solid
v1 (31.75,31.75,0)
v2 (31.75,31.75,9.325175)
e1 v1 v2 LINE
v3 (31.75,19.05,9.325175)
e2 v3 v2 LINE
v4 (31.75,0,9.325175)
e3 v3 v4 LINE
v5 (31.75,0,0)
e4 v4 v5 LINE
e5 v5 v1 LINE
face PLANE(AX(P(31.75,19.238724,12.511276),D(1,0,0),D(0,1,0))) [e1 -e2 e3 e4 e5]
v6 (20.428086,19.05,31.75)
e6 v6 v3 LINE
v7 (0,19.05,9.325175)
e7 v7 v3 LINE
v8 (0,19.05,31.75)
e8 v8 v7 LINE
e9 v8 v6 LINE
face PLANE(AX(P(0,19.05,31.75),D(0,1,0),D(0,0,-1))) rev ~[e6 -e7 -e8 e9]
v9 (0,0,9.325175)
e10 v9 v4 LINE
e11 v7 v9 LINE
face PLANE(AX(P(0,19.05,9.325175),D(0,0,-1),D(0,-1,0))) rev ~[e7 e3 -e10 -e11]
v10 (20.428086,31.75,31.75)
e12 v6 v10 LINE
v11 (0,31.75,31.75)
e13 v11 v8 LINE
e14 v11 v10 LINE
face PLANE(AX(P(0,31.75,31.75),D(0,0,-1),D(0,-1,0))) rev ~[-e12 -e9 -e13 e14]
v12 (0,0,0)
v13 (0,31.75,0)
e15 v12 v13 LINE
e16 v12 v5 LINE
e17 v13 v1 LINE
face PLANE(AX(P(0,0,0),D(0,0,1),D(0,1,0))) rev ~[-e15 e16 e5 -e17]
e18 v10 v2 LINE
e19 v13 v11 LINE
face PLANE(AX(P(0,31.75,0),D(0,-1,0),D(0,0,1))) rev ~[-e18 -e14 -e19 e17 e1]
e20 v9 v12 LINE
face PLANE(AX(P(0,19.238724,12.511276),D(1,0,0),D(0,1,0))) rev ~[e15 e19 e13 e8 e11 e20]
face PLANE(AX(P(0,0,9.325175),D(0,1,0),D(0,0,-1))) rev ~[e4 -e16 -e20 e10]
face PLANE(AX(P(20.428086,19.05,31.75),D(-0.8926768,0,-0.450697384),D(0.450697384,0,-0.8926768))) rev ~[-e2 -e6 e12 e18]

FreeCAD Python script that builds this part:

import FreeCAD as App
import Part
import Sketcher

V = App.Vector
Q = App.Units.Quantity

doc = App.newDocument("Part")
body = doc.addObject("PartDesign::Body", "Body")

sketch1 = doc.addObject("Sketcher::SketchObject", "Sketch")
body.addObject(sketch1)
sketch1.AttachmentSupport = (doc.YZ_Plane, [""])
sketch1.MapMode = "FlatFace"
sketch1.addGeometry([
    Part.LineSegment(V(0, 9, 0), V(0, 0, 0)),
    Part.LineSegment(V(0, 0, 0), V(32, 0, 0)),
    Part.LineSegment(V(32, 0, 0), V(32, 32, 0)),
    Part.LineSegment(V(32, 32, 0), V(19, 32, 0)),
    Part.LineSegment(V(19, 32, 0), V(19, 9, 0)),
    Part.LineSegment(V(19, 9, 0), V(0, 9, 0)),
], False)
sketch1.addConstraint([
    Sketcher.Constraint("Coincident", 0, 2, 1, 1),
    Sketcher.Constraint("Coincident", 1, 2, 2, 1),
    Sketcher.Constraint("Coincident", 2, 2, 3, 1),
    Sketcher.Constraint("Coincident", 3, 2, 4, 1),
    Sketcher.Constraint("Coincident", 4, 2, 5, 1),
    Sketcher.Constraint("Coincident", 5, 2, 0, 1),
    Sketcher.Constraint("Vertical", 0),
    Sketcher.Constraint("Horizontal", 1),
    Sketcher.Constraint("Vertical", 2),
    Sketcher.Constraint("Horizontal", 3),
    Sketcher.Constraint("Vertical", 4),
    Sketcher.Constraint("Horizontal", 5),
    Sketcher.Constraint("Coincident", 0, 2, -1, 1),
    Sketcher.Constraint("Equal", 1, 2),
    Sketcher.Constraint("DistanceX", 3, 2, 3, 1, Q("0.5 in")),
    Sketcher.Constraint("DistanceX", 1, 1, 1, 2, Q("1.25 in")),
    Sketcher.Constraint("DistanceY", 0, 2, 0, 1, 9.325175),
])
pad1 = doc.addObject("PartDesign::Pad", "Pad")
body.addObject(pad1)
pad1.Profile = sketch1
pad1.Length = Q("1.25 in")

sketch2 = doc.addObject("Sketcher::SketchObject", "Sketch001")
body.addObject(sketch2)
sketch2.AttachmentSupport = (doc.XZ_Plane, [""])
sketch2.MapMode = "FlatFace"
sketch2.AttachmentOffset = App.Placement(V(0, 0, -0.75 * 25.4), App.Rotation())
sketch2.addGeometry([
    Part.LineSegment(V(32, 32, 0), V(20, 32, 0)),
    Part.LineSegment(V(20, 32, 0), V(32, 9, 0)),
    Part.LineSegment(V(32, 9, 0), V(32, 32, 0)),
], False)
sketch2.addConstraint([
    Sketcher.Constraint("Coincident", 0, 2, 1, 1),
    Sketcher.Constraint("Coincident", 1, 2, 2, 1),
    Sketcher.Constraint("Coincident", 2, 2, 0, 1),
    Sketcher.Constraint("Horizontal", 0),
    Sketcher.Constraint("Vertical", 2),
    Sketcher.Constraint("DistanceY", -1, 1, 0, 2, Q("1.25 in")),
    Sketcher.Constraint("DistanceX", -1, 1, 1, 2, Q("1.25 in")),
    Sketcher.Constraint("Distance", 1, 25.120878),
    Sketcher.Constraint("DistanceX", 0, 2, 0, 1, 11.321914),
])
pocket1 = doc.addObject("PartDesign::Pocket", "Pocket")
body.addObject(pocket1)
pocket1.Profile = sketch2
pocket1.Length = Q("1 in")

doc.recompute()
